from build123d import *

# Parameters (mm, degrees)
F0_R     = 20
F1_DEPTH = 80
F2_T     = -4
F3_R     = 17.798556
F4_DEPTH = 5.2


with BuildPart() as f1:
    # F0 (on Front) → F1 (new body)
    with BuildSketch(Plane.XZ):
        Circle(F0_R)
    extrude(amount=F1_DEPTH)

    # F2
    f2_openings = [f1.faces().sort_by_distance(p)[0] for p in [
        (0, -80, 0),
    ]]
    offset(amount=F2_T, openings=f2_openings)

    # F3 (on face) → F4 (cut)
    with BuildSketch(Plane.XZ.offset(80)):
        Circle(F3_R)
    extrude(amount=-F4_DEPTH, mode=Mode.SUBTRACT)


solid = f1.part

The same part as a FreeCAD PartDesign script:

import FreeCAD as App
import Part
import Sketcher
Q = App.Units.Quantity


def faces_at(feature, points):
    """Names of the faces that lie closest to the given points."""
    faces = feature.Shape.Faces
    near = lambda p: min(range(len(faces)), key=lambda i: faces[i].distToShape(Part.Vertex(*p))[0])
    return sorted({f"Face{near(p) + 1}" for p in points})

doc = App.newDocument("Part")
body = doc.addObject("PartDesign::Body", "Body")

sketch1 = body.newObject("Sketcher::SketchObject", "Sketch")
sketch1.AttachmentSupport = (doc.getObject("XZ_Plane"), [""])
sketch1.MapMode = "FlatFace"
sketch1.addGeometry(Part.Circle(App.Vector(0, 0, 0), App.Vector(0, 0, 1), 20), False)
sketch1.addConstraint([
    Sketcher.Constraint("Coincident", 0, 3, -1, 1),
    Sketcher.Constraint("Diameter", 0, Q("40 mm")),
])
pad1 = body.newObject("PartDesign::Pad", "Pad")
pad1.Profile = sketch1
pad1.Length = 80
doc.recompute()

thickness = body.newObject("PartDesign::Thickness", "Thickness")
thickness.Base = (pad1, faces_at(pad1, [(0, -80, 0)]))
thickness.Value = 4
thickness.Reversed = True
thickness.Join = "Arc"

sketch2 = body.newObject("Sketcher::SketchObject", "Sketch001")
sketch2.AttachmentSupport = (doc.getObject("XZ_Plane"), [""])
sketch2.MapMode = "FlatFace"
sketch2.AttachmentOffset = App.Placement(App.Vector(0, 0, 80), App.Rotation())
sketch2.addGeometry(Part.Circle(App.Vector(0, 0, 0), App.Vector(0, 0, 1), 18), False)
sketch2.addConstraint([
    Sketcher.Constraint("Coincident", 0, 3, -1, 1),
    Sketcher.Constraint("Diameter", 0, Q("35.597112 mm")),
])
pocket1 = body.newObject("PartDesign::Pocket", "Pocket")
pocket1.Profile = sketch2
pocket1.Length = 5.2

doc.recompute()
